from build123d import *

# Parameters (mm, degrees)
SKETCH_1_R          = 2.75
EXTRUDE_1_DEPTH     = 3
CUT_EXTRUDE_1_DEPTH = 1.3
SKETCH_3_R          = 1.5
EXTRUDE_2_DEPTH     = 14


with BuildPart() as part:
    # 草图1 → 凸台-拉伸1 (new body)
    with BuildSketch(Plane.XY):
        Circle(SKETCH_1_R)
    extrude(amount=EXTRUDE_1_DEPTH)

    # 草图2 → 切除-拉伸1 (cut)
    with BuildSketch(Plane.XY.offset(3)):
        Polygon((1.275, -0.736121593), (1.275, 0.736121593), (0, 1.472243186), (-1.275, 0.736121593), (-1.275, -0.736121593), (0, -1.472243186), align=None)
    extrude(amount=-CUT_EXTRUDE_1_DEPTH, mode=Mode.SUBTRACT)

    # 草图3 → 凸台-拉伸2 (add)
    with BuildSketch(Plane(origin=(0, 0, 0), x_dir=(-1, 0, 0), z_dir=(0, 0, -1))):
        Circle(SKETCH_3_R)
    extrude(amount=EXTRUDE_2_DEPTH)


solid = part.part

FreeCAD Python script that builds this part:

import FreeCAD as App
import Part
import Sketcher

V = App.Vector
Q = App.Units.Quantity

doc = App.newDocument("Part")
params = doc.addObject("Spreadsheet::Sheet", "Params")
for row, (alias, value) in enumerate([
    ("sketch1_diameter", "5.5 mm"),
    ("pad1_length", "3 mm"),
    ("pocket1_length", "1.3 mm"),
    ("sketch3_diameter", "3 mm"),
    ("pad2_length", "14 mm"),
], start=1):
    params.set(f"A{row}", alias)
    params.set(f"B{row}", "=" + value)
    params.setAlias(f"B{row}", alias)

body = doc.addObject("PartDesign::Body", "Body")

# Sketch on XY plane
sketch1 = doc.addObject("Sketcher::SketchObject", "Sketch")
body.addObject(sketch1)
sketch1.AttachmentSupport = (doc.XY_Plane, [""])
sketch1.MapMode = "FlatFace"
sketch1.addGeometry(Part.Circle(V(0, 0, 0), V(0, 0, 1), 2.8), False)
sketch1.addConstraint([
    Sketcher.Constraint("Coincident", 0, 3, -1, 1),
    Sketcher.Constraint("Diameter", 0, Q("5.5 mm")),
])
sketch1.setExpression("Constraints[1]", "Params.sketch1_diameter")
pad1 = doc.addObject("PartDesign::Pad", "Pad")
body.addObject(pad1)
pad1.Profile = sketch1
pad1.setExpression("Length", "Params.pad1_length")

# Sketch on XY plane
sketch2 = doc.addObject("Sketcher::SketchObject", "Sketch001")
body.addObject(sketch2)
sketch2.AttachmentSupport = (doc.XY_Plane, [""])
sketch2.MapMode = "FlatFace"
sketch2.AttachmentOffset = App.Placement(V(0, 0, 3), App.Rotation())
sketch2.addGeometry([
    Part.LineSegment(V(1.3, -0.7, 0), V(1.3, 0.7, 0)),  # 0
    Part.LineSegment(V(1.3, 0.7, 0), V(0, 1.5, 0)),  # 1
    Part.LineSegment(V(0, 1.5, 0), V(-1.3, 0.7, 0)),  # 2
    Part.LineSegment(V(-1.3, 0.7, 0), V(-1.3, -0.7, 0)),  # 3
    Part.LineSegment(V(-1.3, -0.7, 0), V(0, -1.5, 0)),  # 4
    Part.LineSegment(V(0, -1.5, 0), V(1.3, -0.7, 0)),  # 5
], False)
sketch2.addConstraint([
    Sketcher.Constraint("Coincident", 0, 2, 1, 1),
    Sketcher.Constraint("Coincident", 1, 2, 2, 1),
    Sketcher.Constraint("Coincident", 2, 2, 3, 1),
    Sketcher.Constraint("Coincident", 3, 2, 4, 1),
    Sketcher.Constraint("Coincident", 4, 2, 5, 1),
    Sketcher.Constraint("Coincident", 5, 2, 0, 1),
    Sketcher.Constraint("Vertical", 0),
    Sketcher.Constraint("Vertical", 3),
    Sketcher.Constraint("Symmetric", 0, 2, 3, 2, -1, 1),
    Sketcher.Constraint("Symmetric", 1, 2, 4, 2, -1, 1),
    Sketcher.Constraint("PointOnObject", 1, 2, -2),
    Sketcher.Constraint("Parallel", 2, 5),
    Sketcher.Constraint("Horizontal", 0, 2, 2, 2),
    Sketcher.Constraint("Angle", 1, Q("150 deg")),
    Sketcher.Constraint("DistanceX", 2, 2, 0, 2, Q("2.55 mm")),
    Sketcher.Constraint("DistanceY", 0, 1, 0, 2, Q("1.472243 mm")),
])
pocket1 = doc.addObject("PartDesign::Pocket", "Pocket")
body.addObject(pocket1)
pocket1.Profile = sketch2
pocket1.setExpression("Length", "Params.pocket1_length")

# Sketch on XY plane
sketch3 = doc.addObject("Sketcher::SketchObject", "Sketch002")
body.addObject(sketch3)
sketch3.AttachmentSupport = (doc.XY_Plane, [""])
sketch3.MapMode = "FlatFace"
sketch3.addGeometry(Part.Circle(V(0, 0, 0), V(0, 0, 1), 1.5), False)
sketch3.addConstraint([
    Sketcher.Constraint("Coincident", 0, 3, -1, 1),
    Sketcher.Constraint("Diameter", 0, Q("3 mm")),
])
sketch3.setExpression("Constraints[1]", "Params.sketch3_diameter")
pad2 = doc.addObject("PartDesign::Pad", "Pad001")
body.addObject(pad2)
pad2.Profile = sketch3
pad2.setExpression("Length", "Params.pad2_length")
pad2.Reversed = True

doc.recompute()
